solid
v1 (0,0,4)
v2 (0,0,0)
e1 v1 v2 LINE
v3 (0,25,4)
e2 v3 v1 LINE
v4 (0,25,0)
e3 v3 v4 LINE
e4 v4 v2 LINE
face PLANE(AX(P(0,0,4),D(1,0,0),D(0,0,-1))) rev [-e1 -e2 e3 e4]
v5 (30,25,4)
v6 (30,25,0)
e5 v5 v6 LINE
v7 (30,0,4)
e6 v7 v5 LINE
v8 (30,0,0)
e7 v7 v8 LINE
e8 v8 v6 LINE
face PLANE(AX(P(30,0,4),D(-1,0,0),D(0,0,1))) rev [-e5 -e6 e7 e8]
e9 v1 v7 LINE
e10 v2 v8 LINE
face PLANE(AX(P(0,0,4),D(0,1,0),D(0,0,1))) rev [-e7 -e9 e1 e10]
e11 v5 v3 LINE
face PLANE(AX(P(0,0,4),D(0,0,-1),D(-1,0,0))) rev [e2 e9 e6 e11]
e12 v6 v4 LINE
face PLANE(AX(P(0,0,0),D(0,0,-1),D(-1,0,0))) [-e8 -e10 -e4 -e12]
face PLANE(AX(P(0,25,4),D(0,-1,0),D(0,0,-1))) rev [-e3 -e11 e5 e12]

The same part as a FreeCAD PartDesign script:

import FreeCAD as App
import Part
import Sketcher
Q = App.Units.Quantity

doc = App.newDocument("Part")
body = doc.addObject("PartDesign::Body", "Body")

sketch1 = body.newObject("Sketcher::SketchObject", "Sketch")
sketch1.AttachmentSupport = (doc.getObject("XY_Plane"), [""])
sketch1.MapMode = "FlatFace"
sketch1.addGeometry(Part.LineSegment(App.Vector(0, 25, 0), App.Vector(0, 0, 0)), False)
sketch1.addGeometry(Part.LineSegment(App.Vector(0, 0, 0), App.Vector(30, 0, 0)), False)
sketch1.addGeometry(Part.LineSegment(App.Vector(30, 0, 0), App.Vector(30, 25, 0)), False)
sketch1.addGeometry(Part.LineSegment(App.Vector(30, 25, 0), App.Vector(0, 25, 0)), False)
sketch1.addConstraint(Sketcher.Constraint("Coincident", 0, 2, 1, 1))
sketch1.addConstraint(Sketcher.Constraint("Coincident", 1, 2, 2, 1))
sketch1.addConstraint(Sketcher.Constraint("Coincident", 2, 2, 3, 1))
sketch1.addConstraint(Sketcher.Constraint("Coincident", 3, 2, 0, 1))
sketch1.addConstraint(Sketcher.Constraint("Vertical", 0))
sketch1.addConstraint(Sketcher.Constraint("Horizontal", 1))
sketch1.addConstraint(Sketcher.Constraint("Vertical", 2))
sketch1.addConstraint(Sketcher.Constraint("Horizontal", 3))
sketch1.addConstraint(Sketcher.Constraint("Coincident", 0, 2, -1, 1))
sketch1.addConstraint(Sketcher.Constraint("DistanceX", 1, 1, 1, 2, Q("30 mm")))
sketch1.addConstraint(Sketcher.Constraint("DistanceY", 0, 2, 0, 1, Q("25 mm")))
pad1 = body.newObject("PartDesign::Pad", "Pad")
pad1.Profile = sketch1
pad1.Length = 4

doc.recompute()
